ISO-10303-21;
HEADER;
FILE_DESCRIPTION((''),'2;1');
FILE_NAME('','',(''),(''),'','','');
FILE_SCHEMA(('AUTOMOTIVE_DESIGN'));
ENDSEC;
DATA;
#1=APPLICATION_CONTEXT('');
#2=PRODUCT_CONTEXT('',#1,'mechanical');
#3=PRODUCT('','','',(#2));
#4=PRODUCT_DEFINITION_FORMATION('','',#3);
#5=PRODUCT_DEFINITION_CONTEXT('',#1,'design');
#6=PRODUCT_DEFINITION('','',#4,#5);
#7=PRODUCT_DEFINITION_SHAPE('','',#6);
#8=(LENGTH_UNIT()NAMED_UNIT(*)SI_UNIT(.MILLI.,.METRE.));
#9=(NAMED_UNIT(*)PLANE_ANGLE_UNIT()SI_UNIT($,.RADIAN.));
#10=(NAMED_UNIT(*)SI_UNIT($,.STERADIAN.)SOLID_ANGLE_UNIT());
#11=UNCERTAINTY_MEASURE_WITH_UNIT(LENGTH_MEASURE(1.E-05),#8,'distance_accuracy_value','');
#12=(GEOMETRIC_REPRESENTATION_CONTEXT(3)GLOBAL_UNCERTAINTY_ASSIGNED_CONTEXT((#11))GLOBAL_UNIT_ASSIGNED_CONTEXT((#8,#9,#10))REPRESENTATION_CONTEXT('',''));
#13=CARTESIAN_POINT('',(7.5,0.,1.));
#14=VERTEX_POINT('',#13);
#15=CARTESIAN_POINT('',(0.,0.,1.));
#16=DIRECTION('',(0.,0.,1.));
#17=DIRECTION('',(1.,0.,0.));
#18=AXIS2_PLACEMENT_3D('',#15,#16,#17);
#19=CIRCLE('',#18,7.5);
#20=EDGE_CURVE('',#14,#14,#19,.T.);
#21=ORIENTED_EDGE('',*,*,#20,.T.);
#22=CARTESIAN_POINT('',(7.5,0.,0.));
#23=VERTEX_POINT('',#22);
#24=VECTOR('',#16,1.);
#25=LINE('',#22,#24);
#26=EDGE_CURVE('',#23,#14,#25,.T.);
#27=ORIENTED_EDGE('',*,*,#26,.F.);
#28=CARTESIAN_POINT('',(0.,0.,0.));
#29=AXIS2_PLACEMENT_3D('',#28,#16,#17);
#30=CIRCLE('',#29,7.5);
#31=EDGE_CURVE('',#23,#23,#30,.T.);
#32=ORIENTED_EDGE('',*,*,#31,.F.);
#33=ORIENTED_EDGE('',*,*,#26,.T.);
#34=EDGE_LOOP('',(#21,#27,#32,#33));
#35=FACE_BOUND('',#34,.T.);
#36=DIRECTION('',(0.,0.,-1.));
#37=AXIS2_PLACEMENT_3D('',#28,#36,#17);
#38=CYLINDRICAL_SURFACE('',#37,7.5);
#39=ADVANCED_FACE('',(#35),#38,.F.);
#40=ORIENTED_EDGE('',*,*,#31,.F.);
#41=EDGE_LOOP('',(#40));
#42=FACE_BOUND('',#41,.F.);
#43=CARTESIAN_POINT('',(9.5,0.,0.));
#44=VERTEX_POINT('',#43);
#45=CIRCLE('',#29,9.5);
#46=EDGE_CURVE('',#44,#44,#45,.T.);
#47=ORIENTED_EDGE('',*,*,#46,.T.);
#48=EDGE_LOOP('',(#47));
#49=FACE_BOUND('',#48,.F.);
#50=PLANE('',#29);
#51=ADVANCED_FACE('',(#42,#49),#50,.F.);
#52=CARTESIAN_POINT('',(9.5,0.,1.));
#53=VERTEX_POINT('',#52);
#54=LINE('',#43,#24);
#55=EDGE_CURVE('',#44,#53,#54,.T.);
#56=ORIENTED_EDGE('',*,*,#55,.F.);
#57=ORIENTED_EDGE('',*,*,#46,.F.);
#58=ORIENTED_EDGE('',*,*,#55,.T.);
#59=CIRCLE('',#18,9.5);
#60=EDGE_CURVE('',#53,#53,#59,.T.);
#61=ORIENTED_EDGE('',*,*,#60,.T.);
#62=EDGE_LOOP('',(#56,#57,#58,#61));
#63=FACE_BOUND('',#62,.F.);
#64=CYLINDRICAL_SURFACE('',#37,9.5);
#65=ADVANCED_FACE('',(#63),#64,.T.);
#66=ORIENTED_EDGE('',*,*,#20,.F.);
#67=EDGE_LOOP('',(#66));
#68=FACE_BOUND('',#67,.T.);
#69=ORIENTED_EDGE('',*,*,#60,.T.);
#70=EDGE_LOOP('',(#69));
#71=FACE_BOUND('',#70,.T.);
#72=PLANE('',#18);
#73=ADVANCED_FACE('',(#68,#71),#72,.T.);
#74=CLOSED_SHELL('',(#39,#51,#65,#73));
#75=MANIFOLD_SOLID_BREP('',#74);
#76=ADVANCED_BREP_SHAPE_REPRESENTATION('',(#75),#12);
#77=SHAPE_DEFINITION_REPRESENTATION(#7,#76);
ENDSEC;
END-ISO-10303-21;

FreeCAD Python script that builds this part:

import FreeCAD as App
import Part
import Sketcher

doc = App.newDocument("Part")
params = doc.addObject("Spreadsheet::Sheet", "Params")
for row, (alias, value) in enumerate([
    ("sketch1_diameter", "19 mm"),
    ("sketch1_diameter2", "15 mm"),
    ("pad1_length", "1 mm"),
], start=1):
    params.set(f"A{row}", alias)
    params.set(f"B{row}", "=" + value)
    params.setAlias(f"B{row}", alias)

body = doc.addObject("PartDesign::Body", "Body")

# Sketch on XY plane
sketch1 = body.newObject("Sketcher::SketchObject", "Sketch")
sketch1.AttachmentSupport = (doc.getObject("XY_Plane"), [""])
sketch1.MapMode = "FlatFace"
sketch1.addGeometry(Part.Circle(App.Vector(0, 0, 0), App.Vector(0, 0, 1), 10), False)
sketch1.addGeometry(Part.Circle(App.Vector(0, 0, 0), App.Vector(0, 0, 1), 8), False)
sketch1.addConstraint(Sketcher.Constraint("Coincident", 0, 3, -1, 1))
sketch1.addConstraint(Sketcher.Constraint("Coincident", 1, 3, -1, 1))
sketch1.addConstraint(Sketcher.Constraint("Diameter", 0, 19.0))
sketch1.addConstraint(Sketcher.Constraint("Diameter", 1, 15.0))
sketch1.setExpression("Constraints[2]", "Params.sketch1_diameter")
sketch1.setExpression("Constraints[3]", "Params.sketch1_diameter2")
pad1 = body.newObject("PartDesign::Pad", "Pad")
pad1.Profile = sketch1
pad1.setExpression("Length", "Params.pad1_length")

doc.recompute()
